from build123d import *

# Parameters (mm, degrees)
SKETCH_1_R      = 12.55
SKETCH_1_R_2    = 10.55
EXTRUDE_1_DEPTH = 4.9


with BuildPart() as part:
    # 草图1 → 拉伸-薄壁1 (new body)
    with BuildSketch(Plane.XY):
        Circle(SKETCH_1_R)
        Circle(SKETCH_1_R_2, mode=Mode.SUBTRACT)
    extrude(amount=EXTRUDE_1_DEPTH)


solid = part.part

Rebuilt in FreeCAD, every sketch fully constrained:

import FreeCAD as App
import Part
import Sketcher

doc = App.newDocument("Part")
body = doc.addObject("PartDesign::Body", "Body")

sketch1 = body.newObject("Sketcher::SketchObject", "Sketch")
sketch1.AttachmentSupport = (doc.getObject("XY_Plane"), [""])
sketch1.MapMode = "FlatFace"
sketch1.addGeometry(Part.Circle(App.Vector(0, 0, 0), App.Vector(0, 0, 1), 13), False)
sketch1.addGeometry(Part.Circle(App.Vector(0, 0, 0), App.Vector(0, 0, 1), 11), False)
sketch1.addConstraint(Sketcher.Constraint("Coincident", 0, 3, -1, 1))
sketch1.addConstraint(Sketcher.Constraint("Coincident", 1, 3, -1, 1))
sketch1.addConstraint(Sketcher.Constraint("Diameter", 0, 25.1))
sketch1.addConstraint(Sketcher.Constraint("Diameter", 1, 21.1))
pad1 = body.newObject("PartDesign::Pad", "Pad")
pad1.Profile = sketch1
pad1.Length = 4.9

doc.recompute()
